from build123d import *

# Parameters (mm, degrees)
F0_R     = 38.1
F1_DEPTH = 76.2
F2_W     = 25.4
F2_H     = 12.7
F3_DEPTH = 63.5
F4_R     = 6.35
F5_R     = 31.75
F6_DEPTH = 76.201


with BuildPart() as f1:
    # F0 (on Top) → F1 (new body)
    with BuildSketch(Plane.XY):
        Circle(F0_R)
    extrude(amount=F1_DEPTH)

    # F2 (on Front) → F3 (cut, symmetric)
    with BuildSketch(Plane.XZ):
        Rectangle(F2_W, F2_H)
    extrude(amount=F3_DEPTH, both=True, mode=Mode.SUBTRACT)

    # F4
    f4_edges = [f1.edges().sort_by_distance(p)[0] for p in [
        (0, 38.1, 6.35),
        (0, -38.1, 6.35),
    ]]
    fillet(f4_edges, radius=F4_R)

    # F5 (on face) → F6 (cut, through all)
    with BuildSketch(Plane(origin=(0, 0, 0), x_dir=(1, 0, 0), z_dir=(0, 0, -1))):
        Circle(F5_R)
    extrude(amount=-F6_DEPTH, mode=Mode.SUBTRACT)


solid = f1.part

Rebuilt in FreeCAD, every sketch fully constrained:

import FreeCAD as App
import Part
import Sketcher

V = App.Vector
Q = App.Units.Quantity


def edges_at(feature, points):
    """Names of the edges that pass closest to the given points."""
    edges = feature.Shape.Edges
    near = lambda p: min(range(len(edges)), key=lambda i: edges[i].distToShape(Part.Vertex(*p))[0])
    return sorted({f"Edge{near(p) + 1}" for p in points})

doc = App.newDocument("Part")
body = doc.addObject("PartDesign::Body", "Body")

# Sketch on XY plane
sketch1 = body.newObject("Sketcher::SketchObject", "Sketch")
sketch1.AttachmentSupport = (doc.getObject("XY_Plane"), [""])
sketch1.MapMode = "FlatFace"
sketch1.addGeometry(Part.Circle(V(0, 0, 0), V(0, 0, 1), 38), False)
sketch1.addConstraint([
    Sketcher.Constraint("Coincident", 0, 3, -1, 1),
    Sketcher.Constraint("Diameter", 0, Q("3 in")),
])
pad1 = body.newObject("PartDesign::Pad", "Pad")
pad1.Profile = sketch1
pad1.Length = Q("3 in")

# Sketch on XZ plane
sketch2 = body.newObject("Sketcher::SketchObject", "Sketch001")
sketch2.AttachmentSupport = (doc.getObject("XZ_Plane"), [""])
sketch2.MapMode = "FlatFace"
sketch2.addGeometry([
    Part.LineSegment(V(-13, 6, 0), V(-13, -6, 0)),
    Part.LineSegment(V(-13, -6, 0), V(13, -6, 0)),
    Part.LineSegment(V(13, -6, 0), V(13, 6, 0)),
    Part.LineSegment(V(13, 6, 0), V(-13, 6, 0)),
], False)
sketch2.addConstraint([
    Sketcher.Constraint("Coincident", 0, 2, 1, 1),
    Sketcher.Constraint("Coincident", 1, 2, 2, 1),
    Sketcher.Constraint("Coincident", 2, 2, 3, 1),
    Sketcher.Constraint("Coincident", 3, 2, 0, 1),
    Sketcher.Constraint("Vertical", 0),
    Sketcher.Constraint("Horizontal", 1),
    Sketcher.Constraint("Vertical", 2),
    Sketcher.Constraint("Horizontal", 3),
    Sketcher.Constraint("Symmetric", 0, 2, 2, 2, -1, 1),
    Sketcher.Constraint("DistanceX", 1, 1, 1, 2, Q("1 in")),
    Sketcher.Constraint("DistanceY", 0, 2, 0, 1, Q("0.5 in")),
])
pocket1 = body.newObject("PartDesign::Pocket", "Pocket")
pocket1.Profile = sketch2
pocket1.Length = Q("5 in")
pocket1.Midplane = True
doc.recompute()

fillet = body.newObject("PartDesign::Fillet", "Fillet")
fillet.Base = (pocket1, edges_at(pocket1, [(0, 38.1, 6.35), (0, -38.1, 6.35)]))
fillet.Radius = Q("0.25 in")

# Sketch on XY plane
sketch3 = body.newObject("Sketcher::SketchObject", "Sketch002")
sketch3.AttachmentSupport = (doc.getObject("XY_Plane"), [""])
sketch3.MapMode = "FlatFace"
sketch3.addGeometry(Part.Circle(V(0, 0, 0), V(0, 0, 1), 32), False)
sketch3.addConstraint([
    Sketcher.Constraint("Coincident", 0, 3, -1, 1),
    Sketcher.Constraint("Diameter", 0, Q("2.5 in")),
])
pocket2 = body.newObject("PartDesign::Pocket", "Pocket001")
pocket2.Profile = sketch3
pocket2.Type = "ThroughAll"
pocket2.Reversed = True

doc.recompute()
